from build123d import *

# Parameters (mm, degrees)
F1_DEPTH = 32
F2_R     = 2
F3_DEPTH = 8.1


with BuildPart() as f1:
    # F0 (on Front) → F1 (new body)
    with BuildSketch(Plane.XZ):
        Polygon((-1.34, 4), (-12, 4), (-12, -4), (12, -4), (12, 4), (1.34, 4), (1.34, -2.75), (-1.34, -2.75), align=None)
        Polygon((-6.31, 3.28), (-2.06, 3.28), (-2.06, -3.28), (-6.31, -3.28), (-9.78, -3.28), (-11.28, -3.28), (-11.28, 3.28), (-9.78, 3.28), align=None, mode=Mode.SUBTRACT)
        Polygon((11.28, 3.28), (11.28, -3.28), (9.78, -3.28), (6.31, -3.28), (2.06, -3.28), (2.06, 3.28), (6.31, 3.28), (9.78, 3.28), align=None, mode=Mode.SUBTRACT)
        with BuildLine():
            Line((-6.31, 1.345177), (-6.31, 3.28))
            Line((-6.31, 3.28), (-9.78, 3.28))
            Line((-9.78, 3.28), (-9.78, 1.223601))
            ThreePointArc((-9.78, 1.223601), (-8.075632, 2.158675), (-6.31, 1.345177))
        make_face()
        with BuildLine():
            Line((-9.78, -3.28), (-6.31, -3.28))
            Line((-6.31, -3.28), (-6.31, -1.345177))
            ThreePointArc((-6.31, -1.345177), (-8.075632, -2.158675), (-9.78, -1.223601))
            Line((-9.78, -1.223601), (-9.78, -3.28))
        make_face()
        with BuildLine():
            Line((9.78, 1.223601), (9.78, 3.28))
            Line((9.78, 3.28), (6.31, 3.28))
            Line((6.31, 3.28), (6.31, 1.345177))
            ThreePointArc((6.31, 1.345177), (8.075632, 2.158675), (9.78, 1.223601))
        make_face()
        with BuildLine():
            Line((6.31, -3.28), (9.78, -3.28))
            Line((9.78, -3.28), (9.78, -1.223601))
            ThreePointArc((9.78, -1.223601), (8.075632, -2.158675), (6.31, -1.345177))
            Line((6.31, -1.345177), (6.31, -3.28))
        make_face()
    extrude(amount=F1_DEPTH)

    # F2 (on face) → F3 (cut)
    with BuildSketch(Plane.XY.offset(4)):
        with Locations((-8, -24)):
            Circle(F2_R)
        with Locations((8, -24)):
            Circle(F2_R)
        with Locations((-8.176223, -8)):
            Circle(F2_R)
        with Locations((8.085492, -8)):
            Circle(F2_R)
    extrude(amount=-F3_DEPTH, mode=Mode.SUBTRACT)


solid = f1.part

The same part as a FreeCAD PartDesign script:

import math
import FreeCAD as App
import Part
import Sketcher
from FreeCAD import Vector
Q = App.Units.Quantity

doc = App.newDocument("Part")
body = doc.addObject("PartDesign::Body", "Body")

# Sketch on XZ plane
sketch1 = body.newObject("Sketcher::SketchObject", "Sketch")
sketch1.AttachmentSupport = (doc.getObject("XZ_Plane"), [""])
sketch1.MapMode = "FlatFace"
sketch1.addGeometry([
    Part.LineSegment(Vector(-1.3, 4, 0), Vector(-12, 4, 0)),  # 0
    Part.LineSegment(Vector(-12, 4, 0), Vector(-12, -4, 0)),  # 1
    Part.LineSegment(Vector(-12, -4, 0), Vector(12, -4, 0)),  # 2
    Part.LineSegment(Vector(12, -4, 0), Vector(12, 4, 0)),  # 3
    Part.LineSegment(Vector(12, 4, 0), Vector(1.3, 4, 0)),  # 4
    Part.LineSegment(Vector(1.3, 4, 0), Vector(1.3, -2.8, 0)),  # 5
    Part.LineSegment(Vector(1.3, -2.8, 0), Vector(-1.3, -2.8, 0)),  # 6
    Part.LineSegment(Vector(-1.3, -2.8, 0), Vector(-1.3, 4, 0)),  # 7
    Part.LineSegment(Vector(-11.3, 3.3, 0), Vector(-9.8, 3.3, 0)),  # 8
    Part.LineSegment(Vector(-9.8, 3.3, 0), Vector(-9.8, 1.2, 0)),  # 9
    Part.ArcOfCircle(Part.Circle(Vector(-8, 0, 0), Vector(0, 0, 1), 2.2), math.radians(39), math.radians(145)),  # 10
    Part.LineSegment(Vector(-6.3, 1.3, 0), Vector(-6.3, 3.3, 0)),  # 11
    Part.LineSegment(Vector(-6.3, 3.3, 0), Vector(-2.1, 3.3, 0)),  # 12
    Part.LineSegment(Vector(-2.1, 3.3, 0), Vector(-2.1, -3.3, 0)),  # 13
    Part.LineSegment(Vector(-2.1, -3.3, 0), Vector(-6.3, -3.3, 0)),  # 14
    Part.LineSegment(Vector(-6.3, -3.3, 0), Vector(-6.3, -1.3, 0)),  # 15
    Part.ArcOfCircle(Part.Circle(Vector(-8, 0, 0), Vector(0, 0, 1), 2.2), math.radians(-145), math.radians(-39)),  # 16
    Part.LineSegment(Vector(-9.8, -1.2, 0), Vector(-9.8, -3.3, 0)),  # 17
    Part.LineSegment(Vector(-9.8, -3.3, 0), Vector(-11.3, -3.3, 0)),  # 18
    Part.LineSegment(Vector(-11.3, -3.3, 0), Vector(-11.3, 3.3, 0)),  # 19
    Part.LineSegment(Vector(2.1, 3.3, 0), Vector(6.3, 3.3, 0)),  # 20
    Part.LineSegment(Vector(6.3, 3.3, 0), Vector(6.3, 1.3, 0)),  # 21
    Part.ArcOfCircle(Part.Circle(Vector(8, 0, 0), Vector(0, 0, 1), 2.2), math.radians(35), math.radians(141)),  # 22
    Part.LineSegment(Vector(9.8, 1.2, 0), Vector(9.8, 3.3, 0)),  # 23
    Part.LineSegment(Vector(9.8, 3.3, 0), Vector(11.3, 3.3, 0)),  # 24
    Part.LineSegment(Vector(11.3, 3.3, 0), Vector(11.3, -3.3, 0)),  # 25
    Part.LineSegment(Vector(11.3, -3.3, 0), Vector(9.8, -3.3, 0)),  # 26
    Part.LineSegment(Vector(9.8, -3.3, 0), Vector(9.8, -1.2, 0)),  # 27
    Part.ArcOfCircle(Part.Circle(Vector(8, 0, 0), Vector(0, 0, 1), 2.2), math.radians(-141), math.radians(-35)),  # 28
    Part.LineSegment(Vector(6.3, -1.3, 0), Vector(6.3, -3.3, 0)),  # 29
    Part.LineSegment(Vector(6.3, -3.3, 0), Vector(2.1, -3.3, 0)),  # 30
    Part.LineSegment(Vector(2.1, -3.3, 0), Vector(2.1, 3.3, 0)),  # 31
], False)
sketch1.addConstraint([
    Sketcher.Constraint("Coincident", 0, 2, 1, 1),
    Sketcher.Constraint("Coincident", 1, 2, 2, 1),
    Sketcher.Constraint("Coincident", 2, 2, 3, 1),
    Sketcher.Constraint("Coincident", 3, 2, 4, 1),
    Sketcher.Constraint("Coincident", 4, 2, 5, 1),
    Sketcher.Constraint("Coincident", 5, 2, 6, 1),
    Sketcher.Constraint("Coincident", 6, 2, 7, 1),
    Sketcher.Constraint("Coincident", 7, 2, 0, 1),
    Sketcher.Constraint("Coincident", 8, 2, 9, 1),
    Sketcher.Constraint("Coincident", 9, 2, 10, 2),
    Sketcher.Constraint("Coincident", 10, 1, 11, 1),
    Sketcher.Constraint("Coincident", 11, 2, 12, 1),
    Sketcher.Constraint("Coincident", 12, 2, 13, 1),
    Sketcher.Constraint("Coincident", 13, 2, 14, 1),
    Sketcher.Constraint("Coincident", 14, 2, 15, 1),
    Sketcher.Constraint("Coincident", 15, 2, 16, 2),
    Sketcher.Constraint("Coincident", 16, 1, 17, 1),
    Sketcher.Constraint("Coincident", 17, 2, 18, 1),
    Sketcher.Constraint("Coincident", 18, 2, 19, 1),
    Sketcher.Constraint("Coincident", 19, 2, 8, 1),
    Sketcher.Constraint("Coincident", 20, 2, 21, 1),
    Sketcher.Constraint("Coincident", 21, 2, 22, 2),
    Sketcher.Constraint("Coincident", 22, 1, 23, 1),
    Sketcher.Constraint("Coincident", 23, 2, 24, 1),
    Sketcher.Constraint("Coincident", 24, 2, 25, 1),
    Sketcher.Constraint("Coincident", 25, 2, 26, 1),
    Sketcher.Constraint("Coincident", 26, 2, 27, 1),
    Sketcher.Constraint("Coincident", 27, 2, 28, 2),
    Sketcher.Constraint("Coincident", 28, 1, 29, 1),
    Sketcher.Constraint("Coincident", 29, 2, 30, 1),
    Sketcher.Constraint("Coincident", 30, 2, 31, 1),
    Sketcher.Constraint("Coincident", 31, 2, 20, 1),
    Sketcher.Constraint("Horizontal", 0),
    Sketcher.Constraint("Vertical", 1),
    Sketcher.Constraint("Horizontal", 2),
    Sketcher.Constraint("Vertical", 3),
    Sketcher.Constraint("Horizontal", 4),
    Sketcher.Constraint("Vertical", 5),
    Sketcher.Constraint("Horizontal", 6),
    Sketcher.Constraint("Vertical", 7),
    Sketcher.Constraint("Horizontal", 8),
    Sketcher.Constraint("Vertical", 9),
    Sketcher.Constraint("Vertical", 11),
    Sketcher.Constraint("Horizontal", 12),
    Sketcher.Constraint("Vertical", 13),
    Sketcher.Constraint("Horizontal", 14),
    Sketcher.Constraint("Vertical", 15),
    Sketcher.Constraint("Vertical", 17),
    Sketcher.Constraint("Horizontal", 18),
    Sketcher.Constraint("Vertical", 19),
    Sketcher.Constraint("Horizontal", 20),
    Sketcher.Constraint("Vertical", 21),
    Sketcher.Constraint("Vertical", 23),
    Sketcher.Constraint("Horizontal", 24),
    Sketcher.Constraint("Vertical", 25),
    Sketcher.Constraint("Horizontal", 26),
    Sketcher.Constraint("Vertical", 27),
    Sketcher.Constraint("Vertical", 29),
    Sketcher.Constraint("Horizontal", 30),
    Sketcher.Constraint("Vertical", 31),
    Sketcher.Constraint("Coincident", 16, 3, 10, 3),
    Sketcher.Constraint("Coincident", 28, 3, 22, 3),
    Sketcher.Constraint("Equal", 10, 16),
    Sketcher.Constraint("Equal", 16, 22),
    Sketcher.Constraint("Equal", 22, 28),
    Sketcher.Constraint("Symmetric", 10, 3, 22, 3, -1, 1),
    Sketcher.Constraint("Symmetric", 0, 2, 2, 2, -1, 1),
    Sketcher.Constraint("Symmetric", 14, 2, 20, 2, -1, 1),
    Sketcher.Constraint("Symmetric", 17, 2, 23, 2, -1, 1),
    Sketcher.Constraint("Symmetric", 19, 2, 25, 2, -1, 1),
    Sketcher.Constraint("Symmetric", 11, 2, 29, 2, -1, 1),
    Sketcher.Constraint("Symmetric", 4, 2, 7, 2, -2),
    Sketcher.Constraint("Symmetric", 11, 2, 20, 2, -2),
    Sketcher.Constraint("Symmetric", 9, 2, 22, 1, -2),
    Sketcher.Constraint("Symmetric", 17, 2, 26, 2, -2),
    Sketcher.Constraint("Horizontal", 8, 2, 11, 2),
    Sketcher.Constraint("Equal", 14, 20),
    Sketcher.Constraint("DistanceX", 2, 1, 2, 2, Q("24 mm")),
    Sketcher.Constraint("DistanceY", 1, 2, 1, 1, Q("8 mm")),
    Sketcher.Constraint("Radius", 10, Q("2.160001 mm")),
    Sketcher.Constraint("DistanceX", 8, 1, 8, 2, Q("1.5 mm")),
    Sketcher.Constraint("DistanceX", 10, 3, -1, 1, Q("8 mm")),
    Sketcher.Constraint("DistanceX", 0, 2, 0, 1, Q("10.66 mm")),
    Sketcher.Constraint("DistanceX", 12, 1, 12, 2, Q("4.25 mm")),
    Sketcher.Constraint("DistanceY", 5, 2, 5, 1, Q("6.75 mm")),
    Sketcher.Constraint("DistanceY", 13, 2, 13, 1, Q("6.56 mm")),
    Sketcher.Constraint("DistanceX", 12, 2, 4, 2, Q("3.4 mm")),
    Sketcher.Constraint("DistanceX", 8, 2, -1, 1, Q("9.78 mm")),
])
pad1 = body.newObject("PartDesign::Pad", "Pad")
pad1.Profile = sketch1
pad1.Length = 32

# Sketch on XY plane
sketch2 = body.newObject("Sketcher::SketchObject", "Sketch001")
sketch2.AttachmentSupport = (doc.getObject("XY_Plane"), [""])
sketch2.MapMode = "FlatFace"
sketch2.AttachmentOffset = App.Placement(Vector(0, 0, 4), App.Rotation())
sketch2.addGeometry([
    Part.Circle(Vector(-8, -24, 0), Vector(0, 0, 1), 2),
    Part.Circle(Vector(8, -24, 0), Vector(0, 0, 1), 2),
    Part.Circle(Vector(-8.2, -8, 0), Vector(0, 0, 1), 2),
    Part.Circle(Vector(8.1, -8, 0), Vector(0, 0, 1), 2),
], False)
sketch2.addConstraint([
    Sketcher.Constraint("Equal", 0, 1),
    Sketcher.Constraint("Equal", 1, 2),
    Sketcher.Constraint("Equal", 2, 3),
    Sketcher.Constraint("Symmetric", 0, 3, 1, 3, -2),
    Sketcher.Constraint("Horizontal", 2, 3, 3, 3),
    Sketcher.Constraint("Diameter", 0, Q("4 mm")),
    Sketcher.Constraint("DistanceX", 0, 3, -1, 1, Q("8 mm")),
    Sketcher.Constraint("DistanceY", 0, 3, -1, 1, Q("24 mm")),
    Sketcher.Constraint("DistanceY", 2, 3, -1, 1, Q("8 mm")),
    Sketcher.Constraint("DistanceX", 2, 3, -1, 1, Q("8.176223 mm")),
    Sketcher.Constraint("DistanceX", -1, 1, 3, 3, Q("8.085492 mm")),
])
pocket1 = body.newObject("PartDesign::Pocket", "Pocket")
pocket1.Profile = sketch2
pocket1.Length = 8.1

doc.recompute()
